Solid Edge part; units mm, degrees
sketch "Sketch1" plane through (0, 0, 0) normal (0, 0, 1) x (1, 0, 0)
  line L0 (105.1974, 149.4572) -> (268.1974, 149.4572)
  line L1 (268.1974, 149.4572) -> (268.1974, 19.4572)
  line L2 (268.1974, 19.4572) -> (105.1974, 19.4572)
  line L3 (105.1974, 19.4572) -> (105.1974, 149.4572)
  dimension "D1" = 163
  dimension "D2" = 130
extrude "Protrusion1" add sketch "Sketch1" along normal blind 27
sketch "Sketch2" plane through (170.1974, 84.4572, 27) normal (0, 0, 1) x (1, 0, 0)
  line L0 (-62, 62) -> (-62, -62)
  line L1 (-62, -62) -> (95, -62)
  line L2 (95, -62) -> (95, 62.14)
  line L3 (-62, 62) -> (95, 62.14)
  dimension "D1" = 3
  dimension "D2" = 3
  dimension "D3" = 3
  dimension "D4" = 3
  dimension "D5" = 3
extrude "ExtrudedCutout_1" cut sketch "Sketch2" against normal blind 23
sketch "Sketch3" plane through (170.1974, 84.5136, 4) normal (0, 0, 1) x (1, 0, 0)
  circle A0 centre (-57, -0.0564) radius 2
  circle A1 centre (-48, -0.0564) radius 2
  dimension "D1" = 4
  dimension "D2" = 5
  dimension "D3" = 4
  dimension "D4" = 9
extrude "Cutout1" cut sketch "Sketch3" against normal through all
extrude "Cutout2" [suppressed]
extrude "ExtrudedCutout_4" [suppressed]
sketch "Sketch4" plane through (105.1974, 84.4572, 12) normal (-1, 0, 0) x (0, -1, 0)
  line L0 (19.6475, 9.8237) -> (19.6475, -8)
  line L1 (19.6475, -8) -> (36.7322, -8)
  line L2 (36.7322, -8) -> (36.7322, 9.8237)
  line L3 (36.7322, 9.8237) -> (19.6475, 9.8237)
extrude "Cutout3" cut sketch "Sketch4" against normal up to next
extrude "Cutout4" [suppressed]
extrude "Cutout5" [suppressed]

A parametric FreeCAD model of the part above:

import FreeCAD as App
import Part
import Sketcher
Q = App.Units.Quantity

doc = App.newDocument("Part")
body = doc.addObject("PartDesign::Body", "Body")

sketch1 = body.newObject("Sketcher::SketchObject", "Sketch")
sketch1.AttachmentSupport = (doc.getObject("XY_Plane"), [""])
sketch1.MapMode = "FlatFace"
sketch1.addGeometry([
    Part.LineSegment(App.Vector(268, 149, 0), App.Vector(105, 149, 0)),
    Part.LineSegment(App.Vector(105, 149, 0), App.Vector(105, 19, 0)),
    Part.LineSegment(App.Vector(105, 19, 0), App.Vector(268, 19, 0)),
    Part.LineSegment(App.Vector(268, 19, 0), App.Vector(268, 149, 0)),
], False)
sketch1.addConstraint([
    Sketcher.Constraint("Coincident", 0, 2, 1, 1),
    Sketcher.Constraint("Coincident", 1, 2, 2, 1),
    Sketcher.Constraint("Coincident", 2, 2, 3, 1),
    Sketcher.Constraint("Coincident", 3, 2, 0, 1),
    Sketcher.Constraint("Horizontal", 0),
    Sketcher.Constraint("Vertical", 1),
    Sketcher.Constraint("Horizontal", 2),
    Sketcher.Constraint("Vertical", 3),
    Sketcher.Constraint("DistanceX", 0, 2, 0, 1, Q("163 mm")),
    Sketcher.Constraint("DistanceY", 1, 2, 1, 1, Q("130 mm")),
    Sketcher.Constraint("DistanceX", -1, 1, 0, 2, Q("105.1974 mm")),
    Sketcher.Constraint("DistanceY", -1, 1, 0, 2, Q("149.4572 mm")),
])
pad1 = body.newObject("PartDesign::Pad", "Pad")
pad1.Profile = sketch1
pad1.Length = 27

sketch2 = body.newObject("Sketcher::SketchObject", "Sketch001")
sketch2.AttachmentSupport = (doc.getObject("XY_Plane"), [""])
sketch2.MapMode = "FlatFace"
sketch2.AttachmentOffset = App.Placement(App.Vector(0, 0, 27), App.Rotation())
sketch2.addGeometry([
    Part.LineSegment(App.Vector(265, 147, 0), App.Vector(108, 146, 0)),
    Part.LineSegment(App.Vector(108, 146, 0), App.Vector(108, 22, 0)),
    Part.LineSegment(App.Vector(108, 22, 0), App.Vector(265, 22, 0)),
    Part.LineSegment(App.Vector(265, 22, 0), App.Vector(265, 147, 0)),
], False)
sketch2.addConstraint([
    Sketcher.Constraint("Coincident", 0, 2, 1, 1),
    Sketcher.Constraint("Coincident", 1, 2, 2, 1),
    Sketcher.Constraint("Coincident", 2, 2, 3, 1),
    Sketcher.Constraint("Coincident", 3, 2, 0, 1),
    Sketcher.Constraint("Vertical", 1),
    Sketcher.Constraint("Horizontal", 2),
    Sketcher.Constraint("Vertical", 3),
    Sketcher.Constraint("DistanceX", 2, 1, 2, 2, Q("157 mm")),
    Sketcher.Constraint("DistanceY", 1, 2, 1, 1, Q("124 mm")),
    Sketcher.Constraint("DistanceY", 3, 1, 3, 2, Q("124.14 mm")),
    Sketcher.Constraint("DistanceX", -1, 1, 0, 2, Q("108.1974 mm")),
    Sketcher.Constraint("DistanceY", -1, 1, 0, 2, Q("146.4572 mm")),
])
pocket1 = body.newObject("PartDesign::Pocket", "Pocket")
pocket1.Profile = sketch2
pocket1.Length = 23

sketch3 = body.newObject("Sketcher::SketchObject", "Sketch002")
sketch3.AttachmentSupport = (doc.getObject("XY_Plane"), [""])
sketch3.MapMode = "FlatFace"
sketch3.AttachmentOffset = App.Placement(App.Vector(0, 0, 4), App.Rotation())
sketch3.addGeometry([
    Part.Circle(App.Vector(113.2, 84.5, 0), App.Vector(0, 0, 1), 2),
    Part.Circle(App.Vector(122.2, 84.5, 0), App.Vector(0, 0, 1), 2),
], False)
sketch3.addConstraint([
    Sketcher.Constraint("Equal", 0, 1),
    Sketcher.Constraint("Horizontal", 0, 3, 1, 3),
    Sketcher.Constraint("Diameter", 0, Q("4 mm")),
    Sketcher.Constraint("DistanceX", 0, 3, 1, 3, Q("9 mm")),
    Sketcher.Constraint("DistanceX", -1, 1, 0, 3, Q("113.1974 mm")),
    Sketcher.Constraint("DistanceY", -1, 1, 0, 3, Q("84.4572 mm")),
])
pocket2 = body.newObject("PartDesign::Pocket", "Pocket001")
pocket2.Profile = sketch3
pocket2.Type = "ThroughAll"

sketch4 = body.newObject("Sketcher::SketchObject", "Sketch003")
sketch4.AttachmentSupport = (doc.getObject("YZ_Plane"), [""])
sketch4.MapMode = "FlatFace"
sketch4.AttachmentOffset = App.Placement(App.Vector(0, 0, 105.1974), App.Rotation())
sketch4.addGeometry([
    Part.LineSegment(App.Vector(48, 22, 0), App.Vector(65, 22, 0)),
    Part.LineSegment(App.Vector(65, 22, 0), App.Vector(65, 4, 0)),
    Part.LineSegment(App.Vector(65, 4, 0), App.Vector(48, 4, 0)),
    Part.LineSegment(App.Vector(48, 4, 0), App.Vector(48, 22, 0)),
], False)
sketch4.addConstraint([
    Sketcher.Constraint("Coincident", 0, 2, 1, 1),
    Sketcher.Constraint("Coincident", 1, 2, 2, 1),
    Sketcher.Constraint("Coincident", 2, 2, 3, 1),
    Sketcher.Constraint("Coincident", 3, 2, 0, 1),
    Sketcher.Constraint("Horizontal", 0),
    Sketcher.Constraint("Vertical", 1),
    Sketcher.Constraint("Horizontal", 2),
    Sketcher.Constraint("Vertical", 3),
    Sketcher.Constraint("DistanceY", -1, 1, 1, 2, Q("4 mm")),
    Sketcher.Constraint("DistanceX", 0, 1, 0, 2, Q("17.0847 mm")),
    Sketcher.Constraint("DistanceY", 1, 2, 1, 1, Q("17.8237 mm")),
    Sketcher.Constraint("DistanceX", -1, 1, 2, 2, Q("47.725 mm")),
])
pocket3 = body.newObject("PartDesign::Pocket", "Pocket002")
pocket3.Profile = sketch4
pocket3.Type = "UpToFirst"
pocket3.Reversed = True

doc.recompute()
